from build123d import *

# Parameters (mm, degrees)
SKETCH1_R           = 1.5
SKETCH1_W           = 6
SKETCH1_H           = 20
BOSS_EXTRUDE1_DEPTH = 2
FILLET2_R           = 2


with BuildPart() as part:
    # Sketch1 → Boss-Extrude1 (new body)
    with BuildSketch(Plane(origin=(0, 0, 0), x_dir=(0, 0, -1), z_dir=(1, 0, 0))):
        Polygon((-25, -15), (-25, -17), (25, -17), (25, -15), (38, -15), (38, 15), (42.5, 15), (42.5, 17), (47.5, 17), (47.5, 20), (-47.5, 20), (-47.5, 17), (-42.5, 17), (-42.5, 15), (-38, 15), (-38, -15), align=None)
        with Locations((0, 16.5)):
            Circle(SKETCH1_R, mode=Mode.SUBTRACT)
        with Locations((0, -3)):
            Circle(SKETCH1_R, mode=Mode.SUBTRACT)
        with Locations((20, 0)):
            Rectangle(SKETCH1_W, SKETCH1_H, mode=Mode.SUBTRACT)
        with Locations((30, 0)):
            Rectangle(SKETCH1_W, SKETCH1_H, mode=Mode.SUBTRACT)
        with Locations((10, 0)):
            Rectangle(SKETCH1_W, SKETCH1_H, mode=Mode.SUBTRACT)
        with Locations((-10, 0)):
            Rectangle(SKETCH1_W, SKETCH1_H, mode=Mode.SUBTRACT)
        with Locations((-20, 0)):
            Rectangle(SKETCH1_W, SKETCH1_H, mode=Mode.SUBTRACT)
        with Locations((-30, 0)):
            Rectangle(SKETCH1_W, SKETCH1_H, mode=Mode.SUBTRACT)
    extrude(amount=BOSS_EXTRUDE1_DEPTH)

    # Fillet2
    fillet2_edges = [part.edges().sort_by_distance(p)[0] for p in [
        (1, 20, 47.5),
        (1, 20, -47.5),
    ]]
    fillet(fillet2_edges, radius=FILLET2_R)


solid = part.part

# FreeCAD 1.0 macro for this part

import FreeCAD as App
import Part
import Sketcher
Q = App.Units.Quantity


def edges_at(feature, points):
    """Names of the edges that pass closest to the given points."""
    edges = feature.Shape.Edges
    near = lambda p: min(range(len(edges)), key=lambda i: edges[i].distToShape(Part.Vertex(*p))[0])
    return sorted({f"Edge{near(p) + 1}" for p in points})

doc = App.newDocument("Part")
body = doc.addObject("PartDesign::Body", "Body")

# Sketch on YZ plane
sketch1 = body.newObject("Sketcher::SketchObject", "Sketch")
sketch1.AttachmentSupport = (doc.getObject("YZ_Plane"), [""])
sketch1.MapMode = "FlatFace"
sketch1.addGeometry([
    Part.LineSegment(App.Vector(-15, 25, 0), App.Vector(-17, 25, 0)),  # 0
    Part.LineSegment(App.Vector(-17, 25, 0), App.Vector(-17, -25, 0)),  # 1
    Part.LineSegment(App.Vector(-17, -25, 0), App.Vector(-15, -25, 0)),  # 2
    Part.LineSegment(App.Vector(-15, -25, 0), App.Vector(-15, -38, 0)),  # 3
    Part.LineSegment(App.Vector(-15, -38, 0), App.Vector(15, -38, 0)),  # 4
    Part.LineSegment(App.Vector(15, -38, 0), App.Vector(15, -42.5, 0)),  # 5
    Part.LineSegment(App.Vector(15, -42.5, 0), App.Vector(17, -42.5, 0)),  # 6
    Part.LineSegment(App.Vector(17, -42.5, 0), App.Vector(17, -47.5, 0)),  # 7
    Part.LineSegment(App.Vector(17, -47.5, 0), App.Vector(20, -47.5, 0)),  # 8
    Part.LineSegment(App.Vector(20, -47.5, 0), App.Vector(20, 47.5, 0)),  # 9
    Part.LineSegment(App.Vector(20, 47.5, 0), App.Vector(17, 47.5, 0)),  # 10
    Part.LineSegment(App.Vector(17, 47.5, 0), App.Vector(17, 42.5, 0)),  # 11
    Part.LineSegment(App.Vector(17, 42.5, 0), App.Vector(15, 42.5, 0)),  # 12
    Part.LineSegment(App.Vector(15, 42.5, 0), App.Vector(15, 38, 0)),  # 13
    Part.LineSegment(App.Vector(15, 38, 0), App.Vector(-15, 38, 0)),  # 14
    Part.LineSegment(App.Vector(-15, 38, 0), App.Vector(-15, 25, 0)),  # 15
    Part.LineSegment(App.Vector(-10, 27, 0), App.Vector(-10, 33, 0)),  # 16
    Part.LineSegment(App.Vector(-10, 33, 0), App.Vector(10, 33, 0)),  # 17
    Part.LineSegment(App.Vector(10, 33, 0), App.Vector(10, 27, 0)),  # 18
    Part.LineSegment(App.Vector(10, 27, 0), App.Vector(-10, 27, 0)),  # 19
    Part.LineSegment(App.Vector(-10, 17, 0), App.Vector(-10, 23, 0)),  # 20
    Part.LineSegment(App.Vector(-10, 23, 0), App.Vector(10, 23, 0)),  # 21
    Part.LineSegment(App.Vector(10, 23, 0), App.Vector(10, 17, 0)),  # 22
    Part.LineSegment(App.Vector(10, 17, 0), App.Vector(-10, 17, 0)),  # 23
    Part.LineSegment(App.Vector(-10, 7, 0), App.Vector(-10, 13, 0)),  # 24
    Part.LineSegment(App.Vector(-10, 13, 0), App.Vector(10, 13, 0)),  # 25
    Part.LineSegment(App.Vector(10, 13, 0), App.Vector(10, 7, 0)),  # 26
    Part.LineSegment(App.Vector(10, 7, 0), App.Vector(-10, 7, 0)),  # 27
    Part.Circle(App.Vector(-3, 0, 0), App.Vector(0, 0, 1), 1.5),  # 28
    Part.LineSegment(App.Vector(-10, -13, 0), App.Vector(-10, -7, 0)),  # 29
    Part.LineSegment(App.Vector(-10, -7, 0), App.Vector(10, -7, 0)),  # 30
    Part.LineSegment(App.Vector(10, -7, 0), App.Vector(10, -13, 0)),  # 31
    Part.LineSegment(App.Vector(10, -13, 0), App.Vector(-10, -13, 0)),  # 32
    Part.LineSegment(App.Vector(-10, -23, 0), App.Vector(-10, -17, 0)),  # 33
    Part.LineSegment(App.Vector(-10, -17, 0), App.Vector(10, -17, 0)),  # 34
    Part.LineSegment(App.Vector(10, -17, 0), App.Vector(10, -23, 0)),  # 35
    Part.LineSegment(App.Vector(10, -23, 0), App.Vector(-10, -23, 0)),  # 36
    Part.LineSegment(App.Vector(-10, -33, 0), App.Vector(-10, -27, 0)),  # 37
    Part.LineSegment(App.Vector(-10, -27, 0), App.Vector(10, -27, 0)),  # 38
    Part.LineSegment(App.Vector(10, -27, 0), App.Vector(10, -33, 0)),  # 39
    Part.LineSegment(App.Vector(10, -33, 0), App.Vector(-10, -33, 0)),  # 40
    Part.Circle(App.Vector(16.5, 0, 0), App.Vector(0, 0, 1), 1.5),  # 41
], False)
sketch1.addConstraint([
    Sketcher.Constraint("Coincident", 0, 2, 1, 1),
    Sketcher.Constraint("Coincident", 1, 2, 2, 1),
    Sketcher.Constraint("Coincident", 2, 2, 3, 1),
    Sketcher.Constraint("Coincident", 3, 2, 4, 1),
    Sketcher.Constraint("Coincident", 4, 2, 5, 1),
    Sketcher.Constraint("Coincident", 5, 2, 6, 1),
    Sketcher.Constraint("Coincident", 6, 2, 7, 1),
    Sketcher.Constraint("Coincident", 7, 2, 8, 1),
    Sketcher.Constraint("Coincident", 8, 2, 9, 1),
    Sketcher.Constraint("Coincident", 9, 2, 10, 1),
    Sketcher.Constraint("Coincident", 10, 2, 11, 1),
    Sketcher.Constraint("Coincident", 11, 2, 12, 1),
    Sketcher.Constraint("Coincident", 12, 2, 13, 1),
    Sketcher.Constraint("Coincident", 13, 2, 14, 1),
    Sketcher.Constraint("Coincident", 14, 2, 15, 1),
    Sketcher.Constraint("Coincident", 15, 2, 0, 1),
    Sketcher.Constraint("Coincident", 16, 2, 17, 1),
    Sketcher.Constraint("Coincident", 17, 2, 18, 1),
    Sketcher.Constraint("Coincident", 18, 2, 19, 1),
    Sketcher.Constraint("Coincident", 19, 2, 16, 1),
    Sketcher.Constraint("Coincident", 20, 2, 21, 1),
    Sketcher.Constraint("Coincident", 21, 2, 22, 1),
    Sketcher.Constraint("Coincident", 22, 2, 23, 1),
    Sketcher.Constraint("Coincident", 23, 2, 20, 1),
    Sketcher.Constraint("Coincident", 24, 2, 25, 1),
    Sketcher.Constraint("Coincident", 25, 2, 26, 1),
    Sketcher.Constraint("Coincident", 26, 2, 27, 1),
    Sketcher.Constraint("Coincident", 27, 2, 24, 1),
    Sketcher.Constraint("Coincident", 29, 2, 30, 1),
    Sketcher.Constraint("Coincident", 30, 2, 31, 1),
    Sketcher.Constraint("Coincident", 31, 2, 32, 1),
    Sketcher.Constraint("Coincident", 32, 2, 29, 1),
    Sketcher.Constraint("Coincident", 33, 2, 34, 1),
    Sketcher.Constraint("Coincident", 34, 2, 35, 1),
    Sketcher.Constraint("Coincident", 35, 2, 36, 1),
    Sketcher.Constraint("Coincident", 36, 2, 33, 1),
    Sketcher.Constraint("Coincident", 37, 2, 38, 1),
    Sketcher.Constraint("Coincident", 38, 2, 39, 1),
    Sketcher.Constraint("Coincident", 39, 2, 40, 1),
    Sketcher.Constraint("Coincident", 40, 2, 37, 1),
    Sketcher.Constraint("Horizontal", 0),
    Sketcher.Constraint("Vertical", 1),
    Sketcher.Constraint("Horizontal", 2),
    Sketcher.Constraint("Vertical", 3),
    Sketcher.Constraint("Horizontal", 4),
    Sketcher.Constraint("Vertical", 5),
    Sketcher.Constraint("Horizontal", 6),
    Sketcher.Constraint("Vertical", 7),
    Sketcher.Constraint("Horizontal", 8),
    Sketcher.Constraint("Vertical", 9),
    Sketcher.Constraint("Horizontal", 10),
    Sketcher.Constraint("Vertical", 11),
    Sketcher.Constraint("Horizontal", 12),
    Sketcher.Constraint("Vertical", 13),
    Sketcher.Constraint("Horizontal", 14),
    Sketcher.Constraint("Vertical", 15),
    Sketcher.Constraint("Vertical", 16),
    Sketcher.Constraint("Horizontal", 17),
    Sketcher.Constraint("Vertical", 18),
    Sketcher.Constraint("Horizontal", 19),
    Sketcher.Constraint("Vertical", 20),
    Sketcher.Constraint("Horizontal", 21),
    Sketcher.Constraint("Vertical", 22),
    Sketcher.Constraint("Horizontal", 23),
    Sketcher.Constraint("Vertical", 24),
    Sketcher.Constraint("Horizontal", 25),
    Sketcher.Constraint("Vertical", 26),
    Sketcher.Constraint("Horizontal", 27),
    Sketcher.Constraint("Vertical", 29),
    Sketcher.Constraint("Horizontal", 30),
    Sketcher.Constraint("Vertical", 31),
    Sketcher.Constraint("Horizontal", 32),
    Sketcher.Constraint("Vertical", 33),
    Sketcher.Constraint("Horizontal", 34),
    Sketcher.Constraint("Vertical", 35),
    Sketcher.Constraint("Horizontal", 36),
    Sketcher.Constraint("Vertical", 37),
    Sketcher.Constraint("Horizontal", 38),
    Sketcher.Constraint("Vertical", 39),
    Sketcher.Constraint("Horizontal", 40),
    Sketcher.Constraint("Equal", 28, 41),
    Sketcher.Constraint("Symmetric", 3, 2, 13, 2, -1, 1),
    Sketcher.Constraint("Symmetric", 26, 2, 29, 2, -1, 1),
    Sketcher.Constraint("Symmetric", 24, 2, 31, 2, -1, 1),
    Sketcher.Constraint("Symmetric", 22, 2, 33, 2, -1, 1),
    Sketcher.Constraint("Symmetric", 20, 2, 35, 2, -1, 1),
    Sketcher.Constraint("Symmetric", 18, 2, 37, 2, -1, 1),
    Sketcher.Constraint("Symmetric", 16, 2, 39, 2, -1, 1),
    Sketcher.Constraint("Symmetric", 7, 2, 10, 2, -1),
    Sketcher.Constraint("Symmetric", 5, 2, 12, 2, -1),
    Sketcher.Constraint("Symmetric", 2, 2, 15, 2, -1),
    Sketcher.Constraint("PointOnObject", 28, 3, -1),
    Sketcher.Constraint("PointOnObject", 41, 3, -1),
    Sketcher.Constraint("Vertical", 19, 2, 20, 2),
    Sketcher.Constraint("Vertical", 18, 2, 21, 2),
    Sketcher.Constraint("Vertical", 23, 2, 24, 2),
    Sketcher.Constraint("Vertical", 22, 2, 25, 2),
    Sketcher.Constraint("Vertical", 27, 2, 29, 2),
    Sketcher.Constraint("Equal", 2, 6),
    Sketcher.Constraint("Equal", 18, 20),
    Sketcher.Constraint("Equal", 22, 24),
    Sketcher.Constraint("Diameter", 28, Q("3 mm")),
    Sketcher.Constraint("DistanceX", 0, 2, 0, 1, Q("2 mm")),
    Sketcher.Constraint("DistanceX", 4, 1, 4, 2, Q("30 mm")),
    Sketcher.Constraint("DistanceX", 8, 1, 8, 2, Q("3 mm")),
    Sketcher.Constraint("DistanceX", 17, 1, 17, 2, Q("20 mm")),
    Sketcher.Constraint("DistanceY", 1, 2, 1, 1, Q("50 mm")),
    Sketcher.Constraint("DistanceY", 3, 2, 3, 1, Q("13 mm")),
    Sketcher.Constraint("DistanceY", 7, 2, 7, 1, Q("5 mm")),
    Sketcher.Constraint("DistanceY", 9, 1, 9, 2, Q("95 mm")),
    Sketcher.Constraint("DistanceY", 16, 1, 16, 2, Q("6 mm")),
    Sketcher.Constraint("DistanceX", 28, 3, -1, 1, Q("3 mm")),
    Sketcher.Constraint("DistanceY", -1, 1, 16, 2, Q("33 mm")),
    Sketcher.Constraint("DistanceY", -1, 1, 20, 2, Q("23 mm")),
    Sketcher.Constraint("DistanceY", -1, 1, 24, 2, Q("13 mm")),
    Sketcher.Constraint("DistanceX", -1, 1, 41, 3, Q("16.5 mm")),
])
pad1 = body.newObject("PartDesign::Pad", "Pad")
pad1.Profile = sketch1
pad1.Length = 2
doc.recompute()

fillet = body.newObject("PartDesign::Fillet", "Fillet")
fillet.Base = (pad1, edges_at(pad1, [(1, 20, 47.5), (1, 20, -47.5)]))
fillet.Radius = 2

doc.recompute()
